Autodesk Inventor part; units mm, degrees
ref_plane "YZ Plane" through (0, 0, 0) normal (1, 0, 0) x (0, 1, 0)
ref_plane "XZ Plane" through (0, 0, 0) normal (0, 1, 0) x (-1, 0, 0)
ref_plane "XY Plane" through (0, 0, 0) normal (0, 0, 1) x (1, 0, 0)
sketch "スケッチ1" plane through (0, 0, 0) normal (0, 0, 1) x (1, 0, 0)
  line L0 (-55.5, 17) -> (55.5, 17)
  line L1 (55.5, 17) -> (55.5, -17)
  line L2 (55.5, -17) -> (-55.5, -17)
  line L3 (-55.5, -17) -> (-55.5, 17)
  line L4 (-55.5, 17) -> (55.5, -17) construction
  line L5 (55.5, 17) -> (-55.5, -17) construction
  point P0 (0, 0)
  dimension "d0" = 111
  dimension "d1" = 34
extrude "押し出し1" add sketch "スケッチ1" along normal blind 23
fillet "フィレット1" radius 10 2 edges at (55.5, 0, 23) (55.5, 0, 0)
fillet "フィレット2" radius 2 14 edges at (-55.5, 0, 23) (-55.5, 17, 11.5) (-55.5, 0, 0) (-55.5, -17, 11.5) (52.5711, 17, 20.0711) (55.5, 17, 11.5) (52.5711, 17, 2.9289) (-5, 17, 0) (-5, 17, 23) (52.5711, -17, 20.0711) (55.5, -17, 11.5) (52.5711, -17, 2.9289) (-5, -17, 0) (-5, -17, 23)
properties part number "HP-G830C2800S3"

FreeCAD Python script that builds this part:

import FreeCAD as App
import Part
import Sketcher
Q = App.Units.Quantity


def edges_at(feature, points):
    """Names of the edges that pass closest to the given points."""
    edges = feature.Shape.Edges
    near = lambda p: min(range(len(edges)), key=lambda i: edges[i].distToShape(Part.Vertex(*p))[0])
    return sorted({f"Edge{near(p) + 1}" for p in points})

doc = App.newDocument("Part")
body = doc.addObject("PartDesign::Body", "Body")

# Sketch on XY plane
sketch1 = body.newObject("Sketcher::SketchObject", "Sketch")
sketch1.AttachmentSupport = (doc.getObject("XY_Plane"), [""])
sketch1.MapMode = "FlatFace"
sketch1.addGeometry([
    Part.LineSegment(App.Vector(56, 17, 0), App.Vector(-56, 17, 0)),
    Part.LineSegment(App.Vector(-56, 17, 0), App.Vector(-56, -17, 0)),
    Part.LineSegment(App.Vector(-56, -17, 0), App.Vector(56, -17, 0)),
    Part.LineSegment(App.Vector(56, -17, 0), App.Vector(56, 17, 0)),
], False)
sketch1.addConstraint([
    Sketcher.Constraint("Coincident", 0, 2, 1, 1),
    Sketcher.Constraint("Coincident", 1, 2, 2, 1),
    Sketcher.Constraint("Coincident", 2, 2, 3, 1),
    Sketcher.Constraint("Coincident", 3, 2, 0, 1),
    Sketcher.Constraint("Horizontal", 0),
    Sketcher.Constraint("Vertical", 1),
    Sketcher.Constraint("Horizontal", 2),
    Sketcher.Constraint("Vertical", 3),
    Sketcher.Constraint("Symmetric", 0, 2, 2, 2, -1, 1),
    Sketcher.Constraint("DistanceX", 0, 2, 0, 1, Q("111 mm")),
    Sketcher.Constraint("DistanceY", 1, 2, 1, 1, Q("34 mm")),
])
pad1 = body.newObject("PartDesign::Pad", "Pad")
pad1.Profile = sketch1
pad1.Length = 23
doc.recompute()

fillet = body.newObject("PartDesign::Fillet", "Fillet")
fillet.Base = (pad1, edges_at(pad1, [(55.5, 0, 23), (55.5, 0, 0)]))
fillet.Radius = 10
doc.recompute()

fillet2 = body.newObject("PartDesign::Fillet", "Fillet001")
fillet2.Base = (fillet, ["Edge1"])
fillet2.UseAllEdges = True
fillet2.Radius = 2

doc.recompute()
